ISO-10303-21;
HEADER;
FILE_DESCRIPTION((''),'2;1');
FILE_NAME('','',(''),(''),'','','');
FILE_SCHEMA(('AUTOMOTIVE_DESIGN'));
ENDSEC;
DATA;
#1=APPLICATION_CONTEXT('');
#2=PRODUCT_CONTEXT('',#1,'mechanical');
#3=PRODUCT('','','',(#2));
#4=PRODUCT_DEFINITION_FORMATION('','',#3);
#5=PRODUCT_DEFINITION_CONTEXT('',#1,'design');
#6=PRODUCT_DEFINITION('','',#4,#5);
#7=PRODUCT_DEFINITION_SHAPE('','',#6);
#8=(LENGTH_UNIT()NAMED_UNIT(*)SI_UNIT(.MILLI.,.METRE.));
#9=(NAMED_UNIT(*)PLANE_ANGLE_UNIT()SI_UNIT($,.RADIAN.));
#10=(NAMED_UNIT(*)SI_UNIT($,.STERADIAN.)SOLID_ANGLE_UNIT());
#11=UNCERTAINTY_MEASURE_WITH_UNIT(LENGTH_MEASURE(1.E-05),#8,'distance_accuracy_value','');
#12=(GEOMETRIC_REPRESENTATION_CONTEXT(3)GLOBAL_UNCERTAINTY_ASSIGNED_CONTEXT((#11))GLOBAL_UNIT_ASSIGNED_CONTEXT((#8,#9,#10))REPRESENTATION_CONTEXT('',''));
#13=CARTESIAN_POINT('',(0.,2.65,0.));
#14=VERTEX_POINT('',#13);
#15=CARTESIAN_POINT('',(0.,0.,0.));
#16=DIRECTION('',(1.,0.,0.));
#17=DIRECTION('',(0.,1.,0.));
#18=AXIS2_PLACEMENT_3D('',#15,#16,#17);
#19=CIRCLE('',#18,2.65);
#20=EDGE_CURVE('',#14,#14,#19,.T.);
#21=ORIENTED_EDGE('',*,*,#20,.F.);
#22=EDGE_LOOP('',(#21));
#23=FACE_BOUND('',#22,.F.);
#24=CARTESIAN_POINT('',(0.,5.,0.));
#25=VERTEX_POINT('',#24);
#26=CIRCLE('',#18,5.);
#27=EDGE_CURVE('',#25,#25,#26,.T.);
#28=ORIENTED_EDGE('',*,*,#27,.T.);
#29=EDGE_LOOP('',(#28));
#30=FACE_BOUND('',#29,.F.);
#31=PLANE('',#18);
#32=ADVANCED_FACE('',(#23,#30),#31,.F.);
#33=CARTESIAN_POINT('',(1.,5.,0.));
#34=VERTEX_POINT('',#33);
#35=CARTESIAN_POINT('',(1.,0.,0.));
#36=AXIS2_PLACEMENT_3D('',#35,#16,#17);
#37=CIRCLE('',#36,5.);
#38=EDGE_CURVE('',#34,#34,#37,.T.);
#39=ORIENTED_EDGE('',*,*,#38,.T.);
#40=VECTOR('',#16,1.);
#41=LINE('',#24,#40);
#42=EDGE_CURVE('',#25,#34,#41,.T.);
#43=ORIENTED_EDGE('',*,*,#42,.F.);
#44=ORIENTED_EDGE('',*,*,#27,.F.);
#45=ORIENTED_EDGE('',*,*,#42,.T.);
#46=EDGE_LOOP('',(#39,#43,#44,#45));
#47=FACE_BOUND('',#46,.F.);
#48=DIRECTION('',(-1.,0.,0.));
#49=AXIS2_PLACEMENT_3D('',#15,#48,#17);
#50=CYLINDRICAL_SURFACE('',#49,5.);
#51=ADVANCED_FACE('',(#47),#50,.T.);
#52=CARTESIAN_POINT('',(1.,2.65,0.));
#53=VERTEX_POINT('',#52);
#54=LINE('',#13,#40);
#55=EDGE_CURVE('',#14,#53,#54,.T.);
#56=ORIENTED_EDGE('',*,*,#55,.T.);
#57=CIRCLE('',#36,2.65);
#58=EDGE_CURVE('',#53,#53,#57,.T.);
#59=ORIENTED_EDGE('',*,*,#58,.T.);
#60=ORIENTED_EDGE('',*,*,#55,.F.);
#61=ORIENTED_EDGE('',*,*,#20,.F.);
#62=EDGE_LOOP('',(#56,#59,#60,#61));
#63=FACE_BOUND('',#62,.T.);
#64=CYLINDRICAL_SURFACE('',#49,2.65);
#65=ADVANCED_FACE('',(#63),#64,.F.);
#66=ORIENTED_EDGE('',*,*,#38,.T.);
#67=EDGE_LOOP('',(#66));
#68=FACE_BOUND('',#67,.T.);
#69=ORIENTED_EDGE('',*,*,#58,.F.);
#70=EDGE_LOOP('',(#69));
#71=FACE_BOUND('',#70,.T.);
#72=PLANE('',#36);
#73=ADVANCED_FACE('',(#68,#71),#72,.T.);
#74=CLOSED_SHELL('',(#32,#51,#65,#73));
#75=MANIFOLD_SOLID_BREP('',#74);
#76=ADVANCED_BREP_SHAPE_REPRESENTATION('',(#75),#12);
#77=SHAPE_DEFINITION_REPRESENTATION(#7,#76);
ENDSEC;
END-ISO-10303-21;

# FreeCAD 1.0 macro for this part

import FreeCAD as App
import Part
import Sketcher
from FreeCAD import Vector

doc = App.newDocument("Part")
params = doc.addObject("Spreadsheet::Sheet", "Params")
for row, (alias, value) in enumerate([
    ("sketch1_diameter", "10 mm"),
    ("sketch1_diameter2", "5.3 mm"),
    ("pad1_length", "1 mm"),
], start=1):
    params.set(f"A{row}", alias)
    params.set(f"B{row}", "=" + value)
    params.setAlias(f"B{row}", alias)

body = doc.addObject("PartDesign::Body", "Body")

sketch1 = body.newObject("Sketcher::SketchObject", "Sketch")
sketch1.AttachmentSupport = (doc.getObject("YZ_Plane"), [""])
sketch1.MapMode = "FlatFace"
sketch1.addGeometry([
    Part.Circle(Vector(0, 0, 0), Vector(0, 0, 1), 5),
    Part.Circle(Vector(0, 0, 0), Vector(0, 0, 1), 2.6),
], False)
sketch1.addConstraint([
    Sketcher.Constraint("Coincident", 0, 3, -1, 1),
    Sketcher.Constraint("Coincident", 1, 3, -1, 1),
    Sketcher.Constraint("Diameter", 0, 10.0),
    Sketcher.Constraint("Diameter", 1, 5.3),
])
sketch1.setExpression("Constraints[2]", "Params.sketch1_diameter")
sketch1.setExpression("Constraints[3]", "Params.sketch1_diameter2")
pad1 = body.newObject("PartDesign::Pad", "Pad")
pad1.Profile = sketch1
pad1.setExpression("Length", "Params.pad1_length")

doc.recompute()
